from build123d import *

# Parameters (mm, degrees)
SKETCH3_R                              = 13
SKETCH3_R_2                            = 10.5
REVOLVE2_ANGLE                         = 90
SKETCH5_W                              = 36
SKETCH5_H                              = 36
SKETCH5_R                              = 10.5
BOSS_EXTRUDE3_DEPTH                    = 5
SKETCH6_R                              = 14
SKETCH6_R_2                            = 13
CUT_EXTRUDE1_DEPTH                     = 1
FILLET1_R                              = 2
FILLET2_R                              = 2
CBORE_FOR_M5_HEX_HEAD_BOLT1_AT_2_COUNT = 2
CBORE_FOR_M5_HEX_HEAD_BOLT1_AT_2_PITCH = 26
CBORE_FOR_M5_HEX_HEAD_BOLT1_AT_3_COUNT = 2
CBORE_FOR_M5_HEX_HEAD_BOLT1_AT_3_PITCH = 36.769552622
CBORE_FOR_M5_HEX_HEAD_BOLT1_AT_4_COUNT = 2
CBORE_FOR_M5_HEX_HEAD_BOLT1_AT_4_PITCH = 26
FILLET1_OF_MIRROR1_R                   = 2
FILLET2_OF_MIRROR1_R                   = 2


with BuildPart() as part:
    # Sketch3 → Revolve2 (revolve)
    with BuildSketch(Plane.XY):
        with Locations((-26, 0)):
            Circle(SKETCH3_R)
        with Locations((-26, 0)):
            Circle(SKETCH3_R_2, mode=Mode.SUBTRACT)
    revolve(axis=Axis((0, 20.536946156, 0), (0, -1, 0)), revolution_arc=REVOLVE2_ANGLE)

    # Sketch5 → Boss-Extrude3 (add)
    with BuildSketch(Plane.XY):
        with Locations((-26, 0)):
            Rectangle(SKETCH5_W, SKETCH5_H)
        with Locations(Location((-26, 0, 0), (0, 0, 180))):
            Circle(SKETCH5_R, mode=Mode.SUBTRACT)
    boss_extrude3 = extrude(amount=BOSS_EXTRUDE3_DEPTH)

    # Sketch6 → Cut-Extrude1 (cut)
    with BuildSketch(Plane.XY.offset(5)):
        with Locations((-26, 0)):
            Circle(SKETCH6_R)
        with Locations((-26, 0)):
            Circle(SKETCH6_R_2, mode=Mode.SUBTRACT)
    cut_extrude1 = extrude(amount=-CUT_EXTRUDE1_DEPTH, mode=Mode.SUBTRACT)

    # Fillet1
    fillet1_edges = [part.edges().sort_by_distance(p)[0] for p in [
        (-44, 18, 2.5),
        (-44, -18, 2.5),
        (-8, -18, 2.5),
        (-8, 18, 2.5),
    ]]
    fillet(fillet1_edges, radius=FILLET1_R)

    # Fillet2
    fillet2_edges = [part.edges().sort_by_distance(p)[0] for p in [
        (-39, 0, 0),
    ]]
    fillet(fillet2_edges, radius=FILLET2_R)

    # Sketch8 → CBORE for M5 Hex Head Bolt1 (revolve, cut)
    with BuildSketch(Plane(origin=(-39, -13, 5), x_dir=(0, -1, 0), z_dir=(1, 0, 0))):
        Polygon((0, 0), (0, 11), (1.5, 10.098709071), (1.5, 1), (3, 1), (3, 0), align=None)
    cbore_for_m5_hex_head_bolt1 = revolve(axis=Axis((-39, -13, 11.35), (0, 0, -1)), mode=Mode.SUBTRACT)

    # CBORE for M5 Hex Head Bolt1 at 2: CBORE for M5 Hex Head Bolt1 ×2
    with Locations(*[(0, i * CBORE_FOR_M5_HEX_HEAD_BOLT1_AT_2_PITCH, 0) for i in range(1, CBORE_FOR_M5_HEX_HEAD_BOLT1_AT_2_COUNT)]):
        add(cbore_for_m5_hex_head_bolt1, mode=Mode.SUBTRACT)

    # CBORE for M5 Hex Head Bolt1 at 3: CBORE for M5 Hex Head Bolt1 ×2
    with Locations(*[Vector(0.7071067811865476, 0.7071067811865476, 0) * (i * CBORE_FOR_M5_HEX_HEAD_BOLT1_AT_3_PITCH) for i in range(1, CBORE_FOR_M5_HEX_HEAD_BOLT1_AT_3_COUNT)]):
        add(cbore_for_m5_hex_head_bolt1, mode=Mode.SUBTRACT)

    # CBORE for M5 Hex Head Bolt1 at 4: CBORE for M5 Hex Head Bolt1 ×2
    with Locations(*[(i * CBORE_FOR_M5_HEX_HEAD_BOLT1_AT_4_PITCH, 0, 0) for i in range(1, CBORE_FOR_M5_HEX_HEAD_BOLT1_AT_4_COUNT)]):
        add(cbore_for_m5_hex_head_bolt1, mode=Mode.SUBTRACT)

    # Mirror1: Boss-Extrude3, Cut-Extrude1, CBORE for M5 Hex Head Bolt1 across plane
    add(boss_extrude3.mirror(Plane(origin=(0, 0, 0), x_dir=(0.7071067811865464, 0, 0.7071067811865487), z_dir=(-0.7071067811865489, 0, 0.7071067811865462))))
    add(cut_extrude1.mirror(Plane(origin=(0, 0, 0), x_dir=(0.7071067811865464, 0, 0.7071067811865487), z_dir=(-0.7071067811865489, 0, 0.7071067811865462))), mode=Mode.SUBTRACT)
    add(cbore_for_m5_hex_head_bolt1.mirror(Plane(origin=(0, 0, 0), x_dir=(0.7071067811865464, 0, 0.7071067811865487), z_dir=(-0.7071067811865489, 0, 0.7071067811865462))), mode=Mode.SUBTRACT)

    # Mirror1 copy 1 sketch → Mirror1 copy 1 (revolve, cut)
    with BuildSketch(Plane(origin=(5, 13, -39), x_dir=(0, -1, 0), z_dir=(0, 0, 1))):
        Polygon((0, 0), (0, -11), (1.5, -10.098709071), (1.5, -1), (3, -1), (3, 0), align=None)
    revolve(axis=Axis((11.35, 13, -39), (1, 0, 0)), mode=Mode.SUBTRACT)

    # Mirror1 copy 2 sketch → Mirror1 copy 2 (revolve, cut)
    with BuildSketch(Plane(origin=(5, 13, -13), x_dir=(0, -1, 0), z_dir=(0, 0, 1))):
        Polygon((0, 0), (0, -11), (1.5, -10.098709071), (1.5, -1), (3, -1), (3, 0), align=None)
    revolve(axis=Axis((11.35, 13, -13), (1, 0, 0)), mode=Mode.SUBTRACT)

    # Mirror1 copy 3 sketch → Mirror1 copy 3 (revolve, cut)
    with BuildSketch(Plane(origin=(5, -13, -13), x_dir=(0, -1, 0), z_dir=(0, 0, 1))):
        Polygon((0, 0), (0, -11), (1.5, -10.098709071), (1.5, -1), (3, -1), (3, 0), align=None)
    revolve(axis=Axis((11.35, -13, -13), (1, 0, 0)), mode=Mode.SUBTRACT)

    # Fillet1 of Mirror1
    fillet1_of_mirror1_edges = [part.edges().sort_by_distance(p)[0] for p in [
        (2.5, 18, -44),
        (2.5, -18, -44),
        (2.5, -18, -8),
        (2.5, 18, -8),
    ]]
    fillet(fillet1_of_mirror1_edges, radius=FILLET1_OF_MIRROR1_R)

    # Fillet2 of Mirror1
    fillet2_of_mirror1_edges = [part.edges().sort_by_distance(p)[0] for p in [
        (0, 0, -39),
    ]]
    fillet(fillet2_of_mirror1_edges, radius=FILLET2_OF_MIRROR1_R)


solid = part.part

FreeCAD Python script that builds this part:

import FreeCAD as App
import Part
import Sketcher

V = App.Vector
Q = App.Units.Quantity


def edges_at(feature, points):
    """Names of the edges that pass closest to the given points."""
    edges = feature.Shape.Edges
    near = lambda p: min(range(len(edges)), key=lambda i: edges[i].distToShape(Part.Vertex(*p))[0])
    return sorted({f"Edge{near(p) + 1}" for p in points})


def add_polygon(sketch, points):
    """Adds a closed chain of lines whose ends are joined by coincident constraints."""
    first, n = sketch.GeometryCount, len(points)
    for a, b in zip(points, points[1:] + points[:1]):
        sketch.addGeometry(Part.LineSegment(App.Vector(*a, 0), App.Vector(*b, 0)), False)
    for i in range(n):
        sketch.addConstraint(Sketcher.Constraint("Coincident", first + i, 2, first + (i + 1) % n, 1))

doc = App.newDocument("Part")
params = doc.addObject("Spreadsheet::Sheet", "Params")
for row, (alias, value) in enumerate([
    ("sketch1_diameter", "26 mm"),
    ("sketch1_diameter2", "21 mm"),
    ("revolution_angle", "90 deg"),
    ("sketch2_diameter", "21 mm"),
    ("sketch2_width", "36 mm"),
    ("pad1_length", "5 mm"),
    ("sketch3_diameter", "28 mm"),
    ("sketch3_diameter2", "26 mm"),
    ("pocket1_length", "1 mm"),
    ("fillet_radius", "2 mm"),
    ("fillet2_radius", "2 mm"),
    ("sketch4_width", "3 mm"),
    ("sketch4_height", "11 mm"),
    ("sketch4_height2", "1 mm"),
    ("sketch4_width2", "1.5 mm"),
    ("groove_angle", "360 deg"),
    ("linearpattern_pitch", "26 mm"),
    ("linearpattern2_pitch", "36.769553 mm"),
    ("linearpattern3_pitch", "26 mm"),
    ("sketch5_width", "11 mm"),
    ("sketch5_width2", "1 mm"),
    ("sketch5_height", "3 mm"),
    ("sketch5_height2", "1.5 mm"),
    ("groove2_angle", "360 deg"),
    ("sketch6_width", "11 mm"),
    ("sketch6_width2", "1 mm"),
    ("sketch6_height", "3 mm"),
    ("sketch6_height2", "1.5 mm"),
    ("groove3_angle", "360 deg"),
    ("sketch7_width", "11 mm"),
    ("sketch7_width2", "1 mm"),
    ("sketch7_height", "3 mm"),
    ("sketch7_height2", "1.5 mm"),
    ("groove4_angle", "360 deg"),
    ("fillet3_radius", "2 mm"),
    ("fillet4_radius", "2 mm"),
], start=1):
    params.set(f"A{row}", alias)
    params.set(f"B{row}", "=" + value)
    params.setAlias(f"B{row}", alias)

body = doc.addObject("PartDesign::Body", "Body")

# Sketch on XY plane
sketch1 = body.newObject("Sketcher::SketchObject", "Sketch")
sketch1.AttachmentSupport = (doc.getObject("XY_Plane"), [""])
sketch1.MapMode = "FlatFace"
sketch1.addGeometry(Part.Circle(V(-26, 0, 0), V(0, 0, 1), 13), False)
sketch1.addGeometry(Part.Circle(V(-26, 0, 0), V(0, 0, 1), 10.5), False)
sketch1.addConstraint(Sketcher.Constraint("Coincident", 1, 3, 0, 3))
sketch1.addConstraint(Sketcher.Constraint("PointOnObject", 0, 3, -1))
sketch1.addConstraint(Sketcher.Constraint("Diameter", 0, Q("26 mm")))
sketch1.addConstraint(Sketcher.Constraint("Diameter", 1, Q("21 mm")))
sketch1.addConstraint(Sketcher.Constraint("DistanceX", 0, 3, -1, 1, Q("26 mm")))
sketch1.setExpression("Constraints[2]", "Params.sketch1_diameter")
sketch1.setExpression("Constraints[3]", "Params.sketch1_diameter2")
revolution = body.newObject("PartDesign::Revolution", "Revolution")
revolution.Profile = sketch1
revolution.ReferenceAxis = (sketch1, ["V_Axis"])
revolution.setExpression("Angle", "Params.revolution_angle")
revolution.Reversed = True

# Sketch on XY plane
sketch2 = body.newObject("Sketcher::SketchObject", "Sketch001")
sketch2.AttachmentSupport = (doc.getObject("XY_Plane"), [""])
sketch2.MapMode = "FlatFace"
add_polygon(sketch2, [(-44, 18), (-44, -18), (-8, -18), (-8, 18)])  # lines 0-3
sketch2.addGeometry(Part.Circle(V(-26, 0, 0), V(0, 0, 1), 10.5), False)  # 4
sketch2.addConstraint(Sketcher.Constraint("Vertical", 0))
sketch2.addConstraint(Sketcher.Constraint("Horizontal", 1))
sketch2.addConstraint(Sketcher.Constraint("Vertical", 2))
sketch2.addConstraint(Sketcher.Constraint("Horizontal", 3))
sketch2.addConstraint(Sketcher.Constraint("PointOnObject", 4, 3, -1))
sketch2.addConstraint(Sketcher.Constraint("Equal", 3, 0))
sketch2.addConstraint(Sketcher.Constraint("Diameter", 4, Q("21 mm")))
sketch2.addConstraint(Sketcher.Constraint("DistanceX", 1, 1, 1, 2, Q("36 mm")))
sketch2.addConstraint(Sketcher.Constraint("DistanceX", 4, 3, -1, 1, Q("26 mm")))
sketch2.addConstraint(Sketcher.Constraint("DistanceX", 0, 2, -1, 1, Q("44 mm")))
sketch2.addConstraint(Sketcher.Constraint("DistanceY", 0, 2, -1, 1, Q("18 mm")))
sketch2.setExpression("Constraints[10]", "Params.sketch2_diameter")
sketch2.setExpression("Constraints[11]", "Params.sketch2_width")
pad1 = body.newObject("PartDesign::Pad", "Pad")
pad1.Profile = sketch2
pad1.setExpression("Length", "Params.pad1_length")

# Sketch on XY plane
sketch3 = body.newObject("Sketcher::SketchObject", "Sketch002")
sketch3.AttachmentSupport = (doc.getObject("XY_Plane"), [""])
sketch3.MapMode = "FlatFace"
sketch3.AttachmentOffset = App.Placement(V(0, 0, 5), App.Rotation())
sketch3.addGeometry(Part.Circle(V(-26, 0, 0), V(0, 0, 1), 14), False)
sketch3.addGeometry(Part.Circle(V(-26, 0, 0), V(0, 0, 1), 13), False)
sketch3.addConstraint(Sketcher.Constraint("Coincident", 1, 3, 0, 3))
sketch3.addConstraint(Sketcher.Constraint("PointOnObject", 0, 3, -1))
sketch3.addConstraint(Sketcher.Constraint("Diameter", 0, Q("28 mm")))
sketch3.addConstraint(Sketcher.Constraint("Diameter", 1, Q("26 mm")))
sketch3.addConstraint(Sketcher.Constraint("DistanceX", 0, 3, -1, 1, Q("26 mm")))
sketch3.setExpression("Constraints[2]", "Params.sketch3_diameter")
sketch3.setExpression("Constraints[3]", "Params.sketch3_diameter2")
pocket1 = body.newObject("PartDesign::Pocket", "Pocket")
pocket1.Profile = sketch3
pocket1.setExpression("Length", "Params.pocket1_length")
doc.recompute()

fillet = body.newObject("PartDesign::Fillet", "Fillet")
fillet.Base = (pocket1, edges_at(pocket1, [
    (-44, 18, 2.5),
    (-44, -18, 2.5),
    (-8, -18, 2.5),
    (-8, 18, 2.5),
]))
fillet.setExpression("Radius", "Params.fillet_radius")
doc.recompute()

fillet2 = body.newObject("PartDesign::Fillet", "Fillet001")
fillet2.Base = (fillet, edges_at(fillet, [(-39, 0, 0)]))
fillet2.setExpression("Radius", "Params.fillet2_radius")

# Sketch on YZ plane
sketch4 = body.newObject("Sketcher::SketchObject", "Sketch003")
sketch4.AttachmentSupport = (doc.getObject("YZ_Plane"), [""])
sketch4.MapMode = "FlatFace"
sketch4.AttachmentOffset = App.Placement(V(0, 0, -39), App.Rotation())
add_polygon(sketch4, [(-13, -6), (-13, 5), (-16, 5), (-16, 4), (-14.5, 4), (-14.5, -5.098709)])  # lines 0-5
sketch4.addGeometry(Part.LineSegment(V(-13, 5, 0), V(-13, -6, 0)), True)  # axis
sketch4.addConstraint(Sketcher.Constraint("Vertical", 0))
sketch4.addConstraint(Sketcher.Constraint("Horizontal", 1))
sketch4.addConstraint(Sketcher.Constraint("Vertical", 2))
sketch4.addConstraint(Sketcher.Constraint("Horizontal", 3))
sketch4.addConstraint(Sketcher.Constraint("Vertical", 4))
sketch4.addConstraint(Sketcher.Constraint("Vertical", 6))
sketch4.addConstraint(Sketcher.Constraint("Coincident", 6, 1, 0, 2))
sketch4.addConstraint(Sketcher.Constraint("Equal", 0, 6))
sketch4.addConstraint(Sketcher.Constraint("DistanceX", 1, 2, 1, 1, Q("3 mm")))
sketch4.addConstraint(Sketcher.Constraint("DistanceY", 0, 1, 0, 2, Q("11 mm")))
sketch4.addConstraint(Sketcher.Constraint("DistanceY", 2, 2, 2, 1, Q("1 mm")))
sketch4.addConstraint(Sketcher.Constraint("Angle", 5, Q("-31 deg")))
sketch4.addConstraint(Sketcher.Constraint("DistanceX", 3, 1, 3, 2, Q("1.5 mm")))
sketch4.addConstraint(Sketcher.Constraint("DistanceX", 0, 2, -1, 1, Q("13 mm")))
sketch4.addConstraint(Sketcher.Constraint("DistanceY", -1, 1, 0, 2, Q("5 mm")))
sketch4.setExpression("Constraints[14]", "Params.sketch4_width")
sketch4.setExpression("Constraints[15]", "Params.sketch4_height")
sketch4.setExpression("Constraints[16]", "Params.sketch4_height2")
sketch4.setExpression("Constraints[18]", "Params.sketch4_width2")
groove = body.newObject("PartDesign::Groove", "Groove")
groove.Profile = sketch4
groove.ReferenceAxis = (sketch4, ["Axis0"])
groove.setExpression("Angle", "Params.groove_angle")
doc.recompute()

linearpattern = body.newObject("PartDesign::LinearPattern", "LinearPattern")
linearpattern.Originals = [groove]
linearpattern.Direction = (doc.getObject("Y_Axis"), [""])
linearpattern.Mode = "offset"
linearpattern.setExpression("Offset", "Params.linearpattern_pitch")
linearpattern.Occurrences = 2
body.Tip = linearpattern
doc.recompute()

datumline = body.newObject("PartDesign::Line", "DatumLine")
datumline.Placement = App.Placement(V(0, 0, 0), App.Rotation(V(0, 0, 1), V(0.707106781, 0.707106781, 0)))
linearpattern2 = body.newObject("PartDesign::LinearPattern", "LinearPattern001")
linearpattern2.Originals = [groove]
linearpattern2.Direction = (datumline, [""])
linearpattern2.Mode = "offset"
linearpattern2.setExpression("Offset", "Params.linearpattern2_pitch")
linearpattern2.Occurrences = 2
body.Tip = linearpattern2
doc.recompute()

linearpattern3 = body.newObject("PartDesign::LinearPattern", "LinearPattern002")
linearpattern3.Originals = [groove]
linearpattern3.Direction = (doc.getObject("X_Axis"), [""])
linearpattern3.Mode = "offset"
linearpattern3.setExpression("Offset", "Params.linearpattern3_pitch")
linearpattern3.Occurrences = 2
body.Tip = linearpattern3
doc.recompute()

datumplane = body.newObject("PartDesign::Plane", "DatumPlane")
datumplane.Placement = App.Placement(V(0, 0, 0), App.Rotation(V(-0.707106781, 0, -0.707106781), V(0, -1, 0), V(-0.707106781, 0, 0.707106781), "ZXY"))
mirrored = body.newObject("PartDesign::Mirrored", "Mirrored")
mirrored.Originals = [pad1, pocket1, groove]
mirrored.MirrorPlane = (datumplane, [""])
body.Tip = mirrored

# Sketch on XY plane
sketch5 = body.newObject("Sketcher::SketchObject", "Sketch004")
sketch5.AttachmentSupport = (doc.getObject("XY_Plane"), [""])
sketch5.MapMode = "FlatFace"
sketch5.AttachmentOffset = App.Placement(V(0, 0, -39), App.Rotation())
add_polygon(sketch5, [(5, 13), (-6, 13), (-5.098709, 11.5), (4, 11.5), (4, 10), (5, 10)])  # lines 0-5
sketch5.addGeometry(Part.LineSegment(V(-6, 13, 0), V(5, 13, 0)), True)  # axis
sketch5.addConstraint(Sketcher.Constraint("Horizontal", 0))
sketch5.addConstraint(Sketcher.Constraint("Horizontal", 2))
sketch5.addConstraint(Sketcher.Constraint("Vertical", 3))
sketch5.addConstraint(Sketcher.Constraint("Horizontal", 4))
sketch5.addConstraint(Sketcher.Constraint("Vertical", 5))
sketch5.addConstraint(Sketcher.Constraint("Horizontal", 6))
sketch5.addConstraint(Sketcher.Constraint("Coincident", 6, 1, 0, 2))
sketch5.addConstraint(Sketcher.Constraint("Vertical", 4, 2, 6, 2))
sketch5.addConstraint(Sketcher.Constraint("DistanceX", 0, 2, 0, 1, Q("11 mm")))
sketch5.addConstraint(Sketcher.Constraint("DistanceX", 4, 1, 4, 2, Q("1 mm")))
sketch5.addConstraint(Sketcher.Constraint("DistanceY", 5, 1, 5, 2, Q("3 mm")))
sketch5.addConstraint(Sketcher.Constraint("Angle", 1, Q("-59 deg")))
sketch5.addConstraint(Sketcher.Constraint("DistanceY", 3, 2, 3, 1, Q("1.5 mm")))
sketch5.addConstraint(Sketcher.Constraint("DistanceX", 0, 2, -1, 1, Q("6 mm")))
sketch5.addConstraint(Sketcher.Constraint("DistanceY", -1, 1, 0, 2, Q("13 mm")))
sketch5.setExpression("Constraints[14]", "Params.sketch5_width")
sketch5.setExpression("Constraints[15]", "Params.sketch5_width2")
sketch5.setExpression("Constraints[16]", "Params.sketch5_height")
sketch5.setExpression("Constraints[18]", "Params.sketch5_height2")
groove2 = body.newObject("PartDesign::Groove", "Groove001")
groove2.Profile = sketch5
groove2.ReferenceAxis = (sketch5, ["Axis0"])
groove2.setExpression("Angle", "Params.groove2_angle")

# Sketch on XY plane
sketch6 = body.newObject("Sketcher::SketchObject", "Sketch005")
sketch6.AttachmentSupport = (doc.getObject("XY_Plane"), [""])
sketch6.MapMode = "FlatFace"
sketch6.AttachmentOffset = App.Placement(V(0, 0, -13), App.Rotation())
add_polygon(sketch6, [(5, 13), (-6, 13), (-5.098709, 11.5), (4, 11.5), (4, 10), (5, 10)])  # lines 0-5
sketch6.addGeometry(Part.LineSegment(V(-6, 13, 0), V(5, 13, 0)), True)  # axis
sketch6.addConstraint(Sketcher.Constraint("Horizontal", 0))
sketch6.addConstraint(Sketcher.Constraint("Horizontal", 2))
sketch6.addConstraint(Sketcher.Constraint("Vertical", 3))
sketch6.addConstraint(Sketcher.Constraint("Horizontal", 4))
sketch6.addConstraint(Sketcher.Constraint("Vertical", 5))
sketch6.addConstraint(Sketcher.Constraint("Horizontal", 6))
sketch6.addConstraint(Sketcher.Constraint("Coincident", 6, 1, 0, 2))
sketch6.addConstraint(Sketcher.Constraint("Vertical", 4, 2, 6, 2))
sketch6.addConstraint(Sketcher.Constraint("DistanceX", 0, 2, 0, 1, Q("11 mm")))
sketch6.addConstraint(Sketcher.Constraint("DistanceX", 4, 1, 4, 2, Q("1 mm")))
sketch6.addConstraint(Sketcher.Constraint("DistanceY", 5, 1, 5, 2, Q("3 mm")))
sketch6.addConstraint(Sketcher.Constraint("Angle", 1, Q("-59 deg")))
sketch6.addConstraint(Sketcher.Constraint("DistanceY", 3, 2, 3, 1, Q("1.5 mm")))
sketch6.addConstraint(Sketcher.Constraint("DistanceX", 0, 2, -1, 1, Q("6 mm")))
sketch6.addConstraint(Sketcher.Constraint("DistanceY", -1, 1, 0, 2, Q("13 mm")))
sketch6.setExpression("Constraints[14]", "Params.sketch6_width")
sketch6.setExpression("Constraints[15]", "Params.sketch6_width2")
sketch6.setExpression("Constraints[16]", "Params.sketch6_height")
sketch6.setExpression("Constraints[18]", "Params.sketch6_height2")
groove3 = body.newObject("PartDesign::Groove", "Groove002")
groove3.Profile = sketch6
groove3.ReferenceAxis = (sketch6, ["Axis0"])
groove3.setExpression("Angle", "Params.groove3_angle")

# Sketch on XY plane
sketch7 = body.newObject("Sketcher::SketchObject", "Sketch006")
sketch7.AttachmentSupport = (doc.getObject("XY_Plane"), [""])
sketch7.MapMode = "FlatFace"
sketch7.AttachmentOffset = App.Placement(V(0, 0, -13), App.Rotation())
add_polygon(sketch7, [(5, -13), (-6, -13), (-5.098709, -14.5), (4, -14.5), (4, -16), (5, -16)])  # lines 0-5
sketch7.addGeometry(Part.LineSegment(V(-6, -13, 0), V(5, -13, 0)), True)  # axis
sketch7.addConstraint(Sketcher.Constraint("Horizontal", 0))
sketch7.addConstraint(Sketcher.Constraint("Horizontal", 2))
sketch7.addConstraint(Sketcher.Constraint("Vertical", 3))
sketch7.addConstraint(Sketcher.Constraint("Horizontal", 4))
sketch7.addConstraint(Sketcher.Constraint("Vertical", 5))
sketch7.addConstraint(Sketcher.Constraint("Horizontal", 6))
sketch7.addConstraint(Sketcher.Constraint("Coincident", 6, 1, 0, 2))
sketch7.addConstraint(Sketcher.Constraint("Vertical", 4, 2, 6, 2))
sketch7.addConstraint(Sketcher.Constraint("DistanceX", 0, 2, 0, 1, Q("11 mm")))
sketch7.addConstraint(Sketcher.Constraint("DistanceX", 4, 1, 4, 2, Q("1 mm")))
sketch7.addConstraint(Sketcher.Constraint("DistanceY", 5, 1, 5, 2, Q("3 mm")))
sketch7.addConstraint(Sketcher.Constraint("Angle", 1, Q("-59 deg")))
sketch7.addConstraint(Sketcher.Constraint("DistanceY", 3, 2, 3, 1, Q("1.5 mm")))
sketch7.addConstraint(Sketcher.Constraint("DistanceX", 0, 2, -1, 1, Q("6 mm")))
sketch7.addConstraint(Sketcher.Constraint("DistanceY", 0, 2, -1, 1, Q("13 mm")))
sketch7.setExpression("Constraints[14]", "Params.sketch7_width")
sketch7.setExpression("Constraints[15]", "Params.sketch7_width2")
sketch7.setExpression("Constraints[16]", "Params.sketch7_height")
sketch7.setExpression("Constraints[18]", "Params.sketch7_height2")
groove4 = body.newObject("PartDesign::Groove", "Groove003")
groove4.Profile = sketch7
groove4.ReferenceAxis = (sketch7, ["Axis0"])
groove4.setExpression("Angle", "Params.groove4_angle")
doc.recompute()

fillet3 = body.newObject("PartDesign::Fillet", "Fillet002")
fillet3.Base = (groove4, edges_at(groove4, [
    (2.5, 18, -44),
    (2.5, -18, -44),
    (2.5, -18, -8),
    (2.5, 18, -8),
]))
fillet3.setExpression("Radius", "Params.fillet3_radius")
doc.recompute()

fillet4 = body.newObject("PartDesign::Fillet", "Fillet003")
fillet4.Base = (fillet3, edges_at(fillet3, [(0, 0, -39)]))
fillet4.setExpression("Radius", "Params.fillet4_radius")

doc.recompute()
